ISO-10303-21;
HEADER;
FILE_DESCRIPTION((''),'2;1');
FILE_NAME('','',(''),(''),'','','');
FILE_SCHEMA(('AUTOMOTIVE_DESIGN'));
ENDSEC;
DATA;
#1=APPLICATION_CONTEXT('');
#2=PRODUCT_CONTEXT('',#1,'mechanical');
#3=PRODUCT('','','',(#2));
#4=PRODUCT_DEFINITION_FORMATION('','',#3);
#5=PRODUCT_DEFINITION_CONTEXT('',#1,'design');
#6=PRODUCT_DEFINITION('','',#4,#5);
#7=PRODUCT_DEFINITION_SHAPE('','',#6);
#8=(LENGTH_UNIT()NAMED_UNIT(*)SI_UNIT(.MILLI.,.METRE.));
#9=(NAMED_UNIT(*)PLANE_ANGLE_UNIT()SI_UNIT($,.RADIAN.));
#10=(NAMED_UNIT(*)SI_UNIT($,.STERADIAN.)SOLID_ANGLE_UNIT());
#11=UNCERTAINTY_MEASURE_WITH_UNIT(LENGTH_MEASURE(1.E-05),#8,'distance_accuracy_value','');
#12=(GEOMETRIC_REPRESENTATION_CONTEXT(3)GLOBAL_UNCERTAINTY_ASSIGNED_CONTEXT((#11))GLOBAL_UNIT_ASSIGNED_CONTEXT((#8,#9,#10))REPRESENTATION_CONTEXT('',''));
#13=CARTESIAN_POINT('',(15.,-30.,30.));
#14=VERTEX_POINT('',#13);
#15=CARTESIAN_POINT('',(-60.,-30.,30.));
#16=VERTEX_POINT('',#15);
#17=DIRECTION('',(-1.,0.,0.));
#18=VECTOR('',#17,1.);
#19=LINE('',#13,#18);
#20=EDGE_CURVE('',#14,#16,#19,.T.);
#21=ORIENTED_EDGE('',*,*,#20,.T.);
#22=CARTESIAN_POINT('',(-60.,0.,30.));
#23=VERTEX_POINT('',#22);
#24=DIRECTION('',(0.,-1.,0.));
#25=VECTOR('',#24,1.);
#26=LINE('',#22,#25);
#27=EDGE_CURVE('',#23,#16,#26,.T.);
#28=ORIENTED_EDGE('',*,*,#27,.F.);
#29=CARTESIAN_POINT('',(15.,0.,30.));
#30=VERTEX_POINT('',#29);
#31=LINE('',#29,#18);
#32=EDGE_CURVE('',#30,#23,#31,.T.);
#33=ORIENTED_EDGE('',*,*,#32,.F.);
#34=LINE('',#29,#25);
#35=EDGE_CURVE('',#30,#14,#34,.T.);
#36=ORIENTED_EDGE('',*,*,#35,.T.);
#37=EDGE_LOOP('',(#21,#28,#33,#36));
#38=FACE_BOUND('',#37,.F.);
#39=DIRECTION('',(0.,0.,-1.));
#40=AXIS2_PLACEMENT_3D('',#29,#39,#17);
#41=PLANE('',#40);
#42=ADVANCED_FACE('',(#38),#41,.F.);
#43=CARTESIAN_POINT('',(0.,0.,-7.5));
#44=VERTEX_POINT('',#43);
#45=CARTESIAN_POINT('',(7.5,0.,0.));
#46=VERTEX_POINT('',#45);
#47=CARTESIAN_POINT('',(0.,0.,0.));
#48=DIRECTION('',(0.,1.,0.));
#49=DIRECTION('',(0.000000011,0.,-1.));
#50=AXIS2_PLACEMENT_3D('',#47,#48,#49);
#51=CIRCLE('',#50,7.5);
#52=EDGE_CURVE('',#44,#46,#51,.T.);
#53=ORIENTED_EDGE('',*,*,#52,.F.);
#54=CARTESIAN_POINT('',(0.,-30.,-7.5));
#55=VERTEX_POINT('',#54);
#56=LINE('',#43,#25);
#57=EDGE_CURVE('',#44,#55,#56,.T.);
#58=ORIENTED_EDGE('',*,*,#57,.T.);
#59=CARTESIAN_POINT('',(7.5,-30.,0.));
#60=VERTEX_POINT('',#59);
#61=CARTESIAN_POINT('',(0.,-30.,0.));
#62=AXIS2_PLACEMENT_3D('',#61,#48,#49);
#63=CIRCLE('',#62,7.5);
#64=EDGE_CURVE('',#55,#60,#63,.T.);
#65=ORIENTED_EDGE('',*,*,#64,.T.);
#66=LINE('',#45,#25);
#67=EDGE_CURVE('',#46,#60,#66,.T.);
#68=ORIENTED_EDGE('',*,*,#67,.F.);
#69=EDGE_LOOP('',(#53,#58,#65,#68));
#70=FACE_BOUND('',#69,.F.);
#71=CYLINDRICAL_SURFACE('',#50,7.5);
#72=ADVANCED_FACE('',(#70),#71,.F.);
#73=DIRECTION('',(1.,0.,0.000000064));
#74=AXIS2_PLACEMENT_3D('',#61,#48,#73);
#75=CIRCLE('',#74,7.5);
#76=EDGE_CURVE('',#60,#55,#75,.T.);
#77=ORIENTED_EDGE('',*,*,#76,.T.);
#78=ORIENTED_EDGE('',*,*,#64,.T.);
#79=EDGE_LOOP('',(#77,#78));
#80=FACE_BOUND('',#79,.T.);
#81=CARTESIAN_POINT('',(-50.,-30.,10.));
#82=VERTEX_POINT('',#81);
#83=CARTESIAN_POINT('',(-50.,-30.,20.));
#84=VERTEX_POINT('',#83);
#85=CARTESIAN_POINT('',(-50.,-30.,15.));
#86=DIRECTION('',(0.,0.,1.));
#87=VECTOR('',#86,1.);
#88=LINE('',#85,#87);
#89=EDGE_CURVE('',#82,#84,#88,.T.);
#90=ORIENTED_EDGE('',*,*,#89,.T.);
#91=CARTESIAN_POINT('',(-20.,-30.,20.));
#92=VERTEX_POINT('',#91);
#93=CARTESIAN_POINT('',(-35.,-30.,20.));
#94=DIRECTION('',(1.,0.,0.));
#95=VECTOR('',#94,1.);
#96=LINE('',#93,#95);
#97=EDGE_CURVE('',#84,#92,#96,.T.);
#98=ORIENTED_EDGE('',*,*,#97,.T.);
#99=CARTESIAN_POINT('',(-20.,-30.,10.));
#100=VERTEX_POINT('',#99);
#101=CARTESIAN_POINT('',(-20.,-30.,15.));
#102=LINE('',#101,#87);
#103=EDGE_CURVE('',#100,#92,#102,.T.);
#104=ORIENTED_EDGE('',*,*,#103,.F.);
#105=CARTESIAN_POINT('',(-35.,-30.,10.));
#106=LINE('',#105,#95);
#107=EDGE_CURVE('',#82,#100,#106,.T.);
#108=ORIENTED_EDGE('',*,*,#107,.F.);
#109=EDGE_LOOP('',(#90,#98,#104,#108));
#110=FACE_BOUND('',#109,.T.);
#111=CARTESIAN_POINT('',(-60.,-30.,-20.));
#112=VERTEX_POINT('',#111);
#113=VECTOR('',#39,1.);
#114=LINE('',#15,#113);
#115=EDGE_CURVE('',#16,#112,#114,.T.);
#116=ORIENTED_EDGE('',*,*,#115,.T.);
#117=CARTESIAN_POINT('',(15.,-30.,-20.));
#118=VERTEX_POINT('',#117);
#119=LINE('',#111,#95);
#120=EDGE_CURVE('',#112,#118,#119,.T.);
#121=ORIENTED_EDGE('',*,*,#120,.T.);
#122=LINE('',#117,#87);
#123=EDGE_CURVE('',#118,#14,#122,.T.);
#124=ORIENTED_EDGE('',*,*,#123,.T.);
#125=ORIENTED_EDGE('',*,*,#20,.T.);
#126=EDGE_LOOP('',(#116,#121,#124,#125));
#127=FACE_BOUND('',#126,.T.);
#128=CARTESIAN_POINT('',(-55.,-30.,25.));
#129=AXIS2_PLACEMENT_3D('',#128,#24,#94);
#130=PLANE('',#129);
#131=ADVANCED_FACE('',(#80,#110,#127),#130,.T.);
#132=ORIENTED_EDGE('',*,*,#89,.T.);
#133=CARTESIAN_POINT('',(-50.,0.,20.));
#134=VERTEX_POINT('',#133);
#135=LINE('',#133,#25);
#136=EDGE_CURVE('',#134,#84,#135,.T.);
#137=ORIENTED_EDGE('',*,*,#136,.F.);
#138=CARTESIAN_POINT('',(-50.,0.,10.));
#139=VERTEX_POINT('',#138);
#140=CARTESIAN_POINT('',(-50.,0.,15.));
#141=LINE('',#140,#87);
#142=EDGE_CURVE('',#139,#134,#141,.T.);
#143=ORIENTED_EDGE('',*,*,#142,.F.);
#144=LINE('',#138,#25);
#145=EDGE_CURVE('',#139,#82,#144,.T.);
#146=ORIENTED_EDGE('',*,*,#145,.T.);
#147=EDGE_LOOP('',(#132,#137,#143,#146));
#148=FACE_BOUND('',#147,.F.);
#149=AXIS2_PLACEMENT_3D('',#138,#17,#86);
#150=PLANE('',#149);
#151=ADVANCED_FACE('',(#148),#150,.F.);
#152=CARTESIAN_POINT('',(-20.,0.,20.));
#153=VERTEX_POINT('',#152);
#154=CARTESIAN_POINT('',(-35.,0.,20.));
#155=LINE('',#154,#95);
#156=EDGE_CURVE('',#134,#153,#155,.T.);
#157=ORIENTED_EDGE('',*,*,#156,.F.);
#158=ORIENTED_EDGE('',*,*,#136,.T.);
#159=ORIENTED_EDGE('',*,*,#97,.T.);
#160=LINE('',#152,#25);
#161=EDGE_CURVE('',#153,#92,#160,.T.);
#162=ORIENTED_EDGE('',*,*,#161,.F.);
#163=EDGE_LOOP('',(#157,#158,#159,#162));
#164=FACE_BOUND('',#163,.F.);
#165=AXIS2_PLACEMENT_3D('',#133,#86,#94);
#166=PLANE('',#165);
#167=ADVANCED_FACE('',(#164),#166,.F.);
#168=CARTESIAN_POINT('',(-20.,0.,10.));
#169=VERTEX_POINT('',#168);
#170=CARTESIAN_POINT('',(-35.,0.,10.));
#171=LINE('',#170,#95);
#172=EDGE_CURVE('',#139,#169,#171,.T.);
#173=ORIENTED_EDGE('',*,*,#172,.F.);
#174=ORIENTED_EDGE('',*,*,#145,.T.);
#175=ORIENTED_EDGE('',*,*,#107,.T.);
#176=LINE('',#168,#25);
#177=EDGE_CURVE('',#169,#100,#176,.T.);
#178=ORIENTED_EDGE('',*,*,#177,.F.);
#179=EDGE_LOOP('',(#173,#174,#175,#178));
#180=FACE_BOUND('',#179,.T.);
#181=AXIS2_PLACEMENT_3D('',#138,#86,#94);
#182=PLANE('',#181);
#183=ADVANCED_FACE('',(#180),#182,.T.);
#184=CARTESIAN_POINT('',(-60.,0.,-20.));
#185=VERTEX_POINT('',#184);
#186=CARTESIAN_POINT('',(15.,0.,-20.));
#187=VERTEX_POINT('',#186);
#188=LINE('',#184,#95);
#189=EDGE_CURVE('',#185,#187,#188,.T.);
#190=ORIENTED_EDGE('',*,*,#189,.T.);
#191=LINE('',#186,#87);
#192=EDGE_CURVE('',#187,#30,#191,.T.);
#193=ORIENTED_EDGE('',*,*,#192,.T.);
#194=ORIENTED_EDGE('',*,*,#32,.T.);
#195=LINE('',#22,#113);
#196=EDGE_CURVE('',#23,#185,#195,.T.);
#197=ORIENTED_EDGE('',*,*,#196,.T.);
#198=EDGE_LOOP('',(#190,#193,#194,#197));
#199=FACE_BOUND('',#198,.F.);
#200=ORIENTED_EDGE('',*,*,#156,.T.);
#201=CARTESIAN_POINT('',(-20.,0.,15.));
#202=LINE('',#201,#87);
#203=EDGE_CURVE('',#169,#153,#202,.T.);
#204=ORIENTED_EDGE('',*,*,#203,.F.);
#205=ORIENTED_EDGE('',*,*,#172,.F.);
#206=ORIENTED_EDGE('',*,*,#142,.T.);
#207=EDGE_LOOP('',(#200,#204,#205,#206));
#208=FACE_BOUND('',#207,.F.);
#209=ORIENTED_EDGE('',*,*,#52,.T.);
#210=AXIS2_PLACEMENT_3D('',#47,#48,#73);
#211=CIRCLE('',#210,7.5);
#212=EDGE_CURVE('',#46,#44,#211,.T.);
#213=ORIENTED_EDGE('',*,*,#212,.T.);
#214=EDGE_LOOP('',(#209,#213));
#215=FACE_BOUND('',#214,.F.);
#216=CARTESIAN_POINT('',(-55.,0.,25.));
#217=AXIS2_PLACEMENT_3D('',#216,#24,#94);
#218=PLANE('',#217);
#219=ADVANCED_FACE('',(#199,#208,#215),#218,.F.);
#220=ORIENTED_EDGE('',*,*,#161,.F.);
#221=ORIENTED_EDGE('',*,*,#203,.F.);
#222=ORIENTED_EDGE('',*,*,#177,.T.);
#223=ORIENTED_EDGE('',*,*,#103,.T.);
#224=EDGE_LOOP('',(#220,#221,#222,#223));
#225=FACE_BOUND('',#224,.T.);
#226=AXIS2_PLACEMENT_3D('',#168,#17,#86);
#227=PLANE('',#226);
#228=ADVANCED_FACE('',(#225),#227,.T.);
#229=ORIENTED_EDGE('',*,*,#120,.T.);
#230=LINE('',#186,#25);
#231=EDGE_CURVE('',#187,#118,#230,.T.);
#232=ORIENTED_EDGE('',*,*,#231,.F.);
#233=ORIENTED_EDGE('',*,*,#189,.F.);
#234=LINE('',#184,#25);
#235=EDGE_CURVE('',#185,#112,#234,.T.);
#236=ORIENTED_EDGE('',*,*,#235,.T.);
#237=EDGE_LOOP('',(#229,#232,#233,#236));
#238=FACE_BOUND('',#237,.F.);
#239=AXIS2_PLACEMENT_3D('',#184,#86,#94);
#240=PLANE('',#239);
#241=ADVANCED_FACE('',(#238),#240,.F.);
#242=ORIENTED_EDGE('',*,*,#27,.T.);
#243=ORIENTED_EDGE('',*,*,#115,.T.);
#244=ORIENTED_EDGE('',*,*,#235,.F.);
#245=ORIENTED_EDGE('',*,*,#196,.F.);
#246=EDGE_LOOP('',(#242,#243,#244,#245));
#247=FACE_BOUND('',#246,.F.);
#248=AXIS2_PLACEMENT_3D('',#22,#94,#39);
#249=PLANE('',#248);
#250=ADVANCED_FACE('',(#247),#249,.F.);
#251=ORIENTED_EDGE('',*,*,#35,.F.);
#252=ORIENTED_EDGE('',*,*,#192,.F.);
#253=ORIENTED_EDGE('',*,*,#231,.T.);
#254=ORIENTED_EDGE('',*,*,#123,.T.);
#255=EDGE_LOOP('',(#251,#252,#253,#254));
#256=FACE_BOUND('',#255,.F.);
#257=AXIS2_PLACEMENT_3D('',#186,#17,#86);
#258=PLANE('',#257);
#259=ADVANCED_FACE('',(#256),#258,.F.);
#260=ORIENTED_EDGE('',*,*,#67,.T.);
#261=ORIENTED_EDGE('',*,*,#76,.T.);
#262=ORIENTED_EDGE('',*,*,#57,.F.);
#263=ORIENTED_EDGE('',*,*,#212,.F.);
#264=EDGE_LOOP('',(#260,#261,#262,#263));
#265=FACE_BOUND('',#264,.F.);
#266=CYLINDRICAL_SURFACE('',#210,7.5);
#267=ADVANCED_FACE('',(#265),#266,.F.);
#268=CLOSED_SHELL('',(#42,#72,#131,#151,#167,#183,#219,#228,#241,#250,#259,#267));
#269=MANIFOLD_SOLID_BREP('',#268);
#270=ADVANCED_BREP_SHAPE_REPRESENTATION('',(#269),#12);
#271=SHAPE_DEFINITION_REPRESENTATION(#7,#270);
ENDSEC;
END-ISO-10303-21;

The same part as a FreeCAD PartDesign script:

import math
import FreeCAD as App
import Part
import Sketcher
from FreeCAD import Vector
Q = App.Units.Quantity

doc = App.newDocument("Part")
body = doc.addObject("PartDesign::Body", "Body")

# Sketch on XZ plane
sketch1 = doc.addObject("Sketcher::SketchObject", "Sketch")
body.addObject(sketch1)
sketch1.AttachmentSupport = (doc.XZ_Plane, [""])
sketch1.MapMode = "FlatFace"
sketch1.addGeometry([
    Part.LineSegment(Vector(-60, 30, 0), Vector(-60, -20, 0)),  # 0
    Part.LineSegment(Vector(-60, -20, 0), Vector(15, -20, 0)),  # 1
    Part.LineSegment(Vector(15, -20, 0), Vector(15, 30, 0)),  # 2
    Part.LineSegment(Vector(15, 30, 0), Vector(-60, 30, 0)),  # 3
    Part.ArcOfCircle(Part.Circle(Vector(0, 0, 0), Vector(0, 0, 1), 8), math.radians(0), math.radians(270)),  # 4
    Part.ArcOfCircle(Part.Circle(Vector(0, 0, 0), Vector(0, 0, 1), 7), math.radians(-90), math.radians(0)),  # 5
    Part.LineSegment(Vector(-20, 10, 0), Vector(-50, 10, 0)),  # 6
    Part.LineSegment(Vector(-50, 10, 0), Vector(-50, 20, 0)),  # 7
    Part.LineSegment(Vector(-50, 20, 0), Vector(-20, 20, 0)),  # 8
    Part.LineSegment(Vector(-20, 20, 0), Vector(-20, 10, 0)),  # 9
], False)
sketch1.addConstraint([
    Sketcher.Constraint("Coincident", 0, 2, 1, 1),
    Sketcher.Constraint("Coincident", 1, 2, 2, 1),
    Sketcher.Constraint("Coincident", 2, 2, 3, 1),
    Sketcher.Constraint("Coincident", 3, 2, 0, 1),
    Sketcher.Constraint("Tangent", 4, 1, 5, 2),
    Sketcher.Constraint("Coincident", 5, 1, 4, 2),
    Sketcher.Constraint("Coincident", 6, 2, 7, 1),
    Sketcher.Constraint("Coincident", 7, 2, 8, 1),
    Sketcher.Constraint("Coincident", 8, 2, 9, 1),
    Sketcher.Constraint("Coincident", 9, 2, 6, 1),
    Sketcher.Constraint("Vertical", 0),
    Sketcher.Constraint("Horizontal", 1),
    Sketcher.Constraint("Vertical", 2),
    Sketcher.Constraint("Horizontal", 3),
    Sketcher.Constraint("Horizontal", 6),
    Sketcher.Constraint("Vertical", 7),
    Sketcher.Constraint("Horizontal", 8),
    Sketcher.Constraint("Vertical", 9),
    Sketcher.Constraint("Coincident", 4, 3, -1, 1),
    Sketcher.Constraint("PointOnObject", 4, 1, -1),
    Sketcher.Constraint("PointOnObject", 5, 1, -2),
    Sketcher.Constraint("Radius", 4, Q("7.5 mm")),
    Sketcher.Constraint("DistanceX", 1, 1, 1, 2, Q("75 mm")),
    Sketcher.Constraint("DistanceX", 6, 2, 6, 1, Q("30 mm")),
    Sketcher.Constraint("DistanceY", 0, 2, 0, 1, Q("50 mm")),
    Sketcher.Constraint("DistanceY", 7, 1, 7, 2, Q("10 mm")),
    Sketcher.Constraint("DistanceX", 0, 2, -1, 1, Q("60 mm")),
    Sketcher.Constraint("DistanceY", 0, 2, -1, 1, Q("20 mm")),
    Sketcher.Constraint("DistanceX", 6, 2, -1, 1, Q("50 mm")),
    Sketcher.Constraint("DistanceY", -1, 1, 6, 2, Q("10 mm")),
])
pad1 = doc.addObject("PartDesign::Pad", "Pad")
body.addObject(pad1)
pad1.Profile = sketch1
pad1.Length = 30

doc.recompute()
